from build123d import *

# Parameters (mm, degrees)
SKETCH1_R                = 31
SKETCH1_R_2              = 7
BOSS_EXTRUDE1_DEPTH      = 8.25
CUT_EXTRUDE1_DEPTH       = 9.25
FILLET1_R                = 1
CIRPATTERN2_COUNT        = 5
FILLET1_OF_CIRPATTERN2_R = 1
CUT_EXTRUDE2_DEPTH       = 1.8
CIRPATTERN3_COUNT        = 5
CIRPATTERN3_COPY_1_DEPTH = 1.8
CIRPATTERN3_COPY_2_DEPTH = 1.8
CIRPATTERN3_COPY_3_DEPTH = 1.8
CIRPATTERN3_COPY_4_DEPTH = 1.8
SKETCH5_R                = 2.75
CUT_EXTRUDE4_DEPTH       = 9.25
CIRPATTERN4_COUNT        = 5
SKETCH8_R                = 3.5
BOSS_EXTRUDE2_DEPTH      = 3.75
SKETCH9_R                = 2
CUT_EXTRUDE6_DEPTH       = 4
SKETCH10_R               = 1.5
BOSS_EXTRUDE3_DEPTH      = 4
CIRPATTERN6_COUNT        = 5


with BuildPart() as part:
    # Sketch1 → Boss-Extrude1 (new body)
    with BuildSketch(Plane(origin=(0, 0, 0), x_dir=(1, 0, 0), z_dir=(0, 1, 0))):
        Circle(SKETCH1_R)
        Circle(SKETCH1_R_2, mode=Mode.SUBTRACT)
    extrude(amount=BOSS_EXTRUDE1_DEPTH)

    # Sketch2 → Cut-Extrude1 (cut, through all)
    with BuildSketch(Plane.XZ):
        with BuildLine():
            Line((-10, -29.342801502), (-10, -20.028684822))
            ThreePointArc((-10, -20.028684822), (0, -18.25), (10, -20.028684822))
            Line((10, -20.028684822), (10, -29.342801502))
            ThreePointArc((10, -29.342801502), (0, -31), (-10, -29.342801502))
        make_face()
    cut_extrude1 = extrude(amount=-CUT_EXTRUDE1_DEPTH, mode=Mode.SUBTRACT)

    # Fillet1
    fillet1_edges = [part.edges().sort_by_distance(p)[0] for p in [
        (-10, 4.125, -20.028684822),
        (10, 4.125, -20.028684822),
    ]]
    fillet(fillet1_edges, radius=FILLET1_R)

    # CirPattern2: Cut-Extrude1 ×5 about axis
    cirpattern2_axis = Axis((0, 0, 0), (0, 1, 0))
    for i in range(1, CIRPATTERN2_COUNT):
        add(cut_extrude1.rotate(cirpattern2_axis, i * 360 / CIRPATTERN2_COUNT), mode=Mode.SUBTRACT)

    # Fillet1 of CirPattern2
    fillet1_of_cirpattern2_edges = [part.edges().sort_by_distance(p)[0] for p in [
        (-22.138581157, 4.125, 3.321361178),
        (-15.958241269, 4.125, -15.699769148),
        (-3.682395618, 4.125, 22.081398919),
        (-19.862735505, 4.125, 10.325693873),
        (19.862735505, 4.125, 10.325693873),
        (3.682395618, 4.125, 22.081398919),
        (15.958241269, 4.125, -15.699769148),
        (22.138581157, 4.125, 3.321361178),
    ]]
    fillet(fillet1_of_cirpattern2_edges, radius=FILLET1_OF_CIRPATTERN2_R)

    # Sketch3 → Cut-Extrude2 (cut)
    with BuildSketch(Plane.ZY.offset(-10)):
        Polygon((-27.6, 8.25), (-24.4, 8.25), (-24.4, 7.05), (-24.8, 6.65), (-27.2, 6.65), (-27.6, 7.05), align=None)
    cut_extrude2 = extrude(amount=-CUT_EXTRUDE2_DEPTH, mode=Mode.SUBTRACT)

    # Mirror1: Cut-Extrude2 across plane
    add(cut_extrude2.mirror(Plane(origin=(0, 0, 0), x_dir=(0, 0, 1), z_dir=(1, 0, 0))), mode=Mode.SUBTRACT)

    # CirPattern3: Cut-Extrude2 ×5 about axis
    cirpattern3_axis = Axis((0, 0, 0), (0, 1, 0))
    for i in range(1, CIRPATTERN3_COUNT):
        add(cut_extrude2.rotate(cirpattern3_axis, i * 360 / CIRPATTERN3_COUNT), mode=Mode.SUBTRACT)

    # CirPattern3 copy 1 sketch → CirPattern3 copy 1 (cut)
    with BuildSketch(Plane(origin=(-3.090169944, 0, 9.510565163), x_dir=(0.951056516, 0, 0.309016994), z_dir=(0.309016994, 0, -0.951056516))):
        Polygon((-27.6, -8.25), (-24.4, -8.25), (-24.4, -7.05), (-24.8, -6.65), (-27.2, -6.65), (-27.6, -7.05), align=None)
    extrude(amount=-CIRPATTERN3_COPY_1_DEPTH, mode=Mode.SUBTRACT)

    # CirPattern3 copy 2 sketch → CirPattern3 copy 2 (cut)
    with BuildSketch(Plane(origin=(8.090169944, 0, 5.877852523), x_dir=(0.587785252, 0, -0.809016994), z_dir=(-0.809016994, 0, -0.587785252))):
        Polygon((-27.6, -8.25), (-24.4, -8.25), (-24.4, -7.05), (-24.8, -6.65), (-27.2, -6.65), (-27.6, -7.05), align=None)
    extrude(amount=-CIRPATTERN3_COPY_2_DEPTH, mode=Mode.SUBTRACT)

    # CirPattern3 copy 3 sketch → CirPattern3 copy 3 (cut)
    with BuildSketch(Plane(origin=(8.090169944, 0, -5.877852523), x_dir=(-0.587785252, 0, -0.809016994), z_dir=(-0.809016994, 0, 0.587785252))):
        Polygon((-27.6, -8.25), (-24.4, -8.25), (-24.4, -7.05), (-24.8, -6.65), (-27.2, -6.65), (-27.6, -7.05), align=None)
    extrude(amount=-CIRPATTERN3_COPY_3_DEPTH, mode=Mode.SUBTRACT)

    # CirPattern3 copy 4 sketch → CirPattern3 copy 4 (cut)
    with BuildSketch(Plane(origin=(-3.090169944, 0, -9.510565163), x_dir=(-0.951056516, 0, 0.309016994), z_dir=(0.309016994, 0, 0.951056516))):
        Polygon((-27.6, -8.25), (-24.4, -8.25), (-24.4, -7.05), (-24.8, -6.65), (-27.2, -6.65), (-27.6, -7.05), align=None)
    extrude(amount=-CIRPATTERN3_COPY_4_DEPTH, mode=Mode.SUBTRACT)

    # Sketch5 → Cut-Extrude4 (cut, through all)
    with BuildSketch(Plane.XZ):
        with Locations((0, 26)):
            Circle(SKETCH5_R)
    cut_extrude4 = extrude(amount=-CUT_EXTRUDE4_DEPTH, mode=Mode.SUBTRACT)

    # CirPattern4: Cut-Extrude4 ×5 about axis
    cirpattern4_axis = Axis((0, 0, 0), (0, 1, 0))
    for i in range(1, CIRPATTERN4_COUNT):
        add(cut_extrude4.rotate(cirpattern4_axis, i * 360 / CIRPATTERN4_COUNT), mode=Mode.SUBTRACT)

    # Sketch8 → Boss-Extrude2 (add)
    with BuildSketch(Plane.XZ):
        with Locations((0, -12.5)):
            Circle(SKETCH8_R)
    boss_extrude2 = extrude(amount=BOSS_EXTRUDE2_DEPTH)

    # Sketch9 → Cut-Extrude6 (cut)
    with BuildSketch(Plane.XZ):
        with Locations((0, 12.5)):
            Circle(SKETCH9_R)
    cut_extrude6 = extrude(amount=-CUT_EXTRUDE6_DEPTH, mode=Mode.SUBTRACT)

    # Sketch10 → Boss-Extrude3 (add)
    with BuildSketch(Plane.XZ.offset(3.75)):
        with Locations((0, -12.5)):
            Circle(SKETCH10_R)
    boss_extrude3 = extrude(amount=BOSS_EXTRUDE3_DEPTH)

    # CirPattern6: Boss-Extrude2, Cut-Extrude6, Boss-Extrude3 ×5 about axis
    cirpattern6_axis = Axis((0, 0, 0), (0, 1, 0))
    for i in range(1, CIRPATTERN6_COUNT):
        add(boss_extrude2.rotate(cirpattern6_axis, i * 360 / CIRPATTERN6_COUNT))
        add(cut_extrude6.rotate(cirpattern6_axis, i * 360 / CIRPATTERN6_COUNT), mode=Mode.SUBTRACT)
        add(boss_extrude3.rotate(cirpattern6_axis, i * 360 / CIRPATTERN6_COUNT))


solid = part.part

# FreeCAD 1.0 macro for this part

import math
import FreeCAD as App
import Part
import Sketcher
from FreeCAD import Vector
Q = App.Units.Quantity


def edges_at(feature, points):
    """Names of the edges that pass closest to the given points."""
    edges = feature.Shape.Edges
    near = lambda p: min(range(len(edges)), key=lambda i: edges[i].distToShape(Part.Vertex(*p))[0])
    return sorted({f"Edge{near(p) + 1}" for p in points})


def add_polygon(sketch, points):
    """Adds a closed chain of lines whose ends are joined by coincident constraints."""
    first, n = sketch.GeometryCount, len(points)
    for a, b in zip(points, points[1:] + points[:1]):
        sketch.addGeometry(Part.LineSegment(App.Vector(*a, 0), App.Vector(*b, 0)), False)
    for i in range(n):
        sketch.addConstraint(Sketcher.Constraint("Coincident", first + i, 2, first + (i + 1) % n, 1))

doc = App.newDocument("Part")
body = doc.addObject("PartDesign::Body", "Body")

# Sketch on XZ plane
sketch1 = body.newObject("Sketcher::SketchObject", "Sketch")
sketch1.AttachmentSupport = (doc.getObject("XZ_Plane"), [""])
sketch1.MapMode = "FlatFace"
sketch1.addGeometry([
    Part.Circle(Vector(0, 0, 0), Vector(0, 0, 1), 31),
    Part.Circle(Vector(0, 0, 0), Vector(0, 0, 1), 7),
], False)
sketch1.addConstraint([
    Sketcher.Constraint("Coincident", 0, 3, -1, 1),
    Sketcher.Constraint("Coincident", 1, 3, -1, 1),
    Sketcher.Constraint("Diameter", 0, Q("62 mm")),
    Sketcher.Constraint("Diameter", 1, Q("14 mm")),
])
pad1 = body.newObject("PartDesign::Pad", "Pad")
pad1.Profile = sketch1
pad1.Length = 8.25
pad1.Reversed = True

# Sketch on XZ plane
sketch2 = body.newObject("Sketcher::SketchObject", "Sketch001")
sketch2.AttachmentSupport = (doc.getObject("XZ_Plane"), [""])
sketch2.MapMode = "FlatFace"
sketch2.addGeometry([
    Part.LineSegment(Vector(-10, -20.028685, 0), Vector(-10, -29.342802, 0)),
    Part.ArcOfCircle(Part.Circle(Vector(0, 0, 0), Vector(0, 0, 1), 31), math.radians(-108.819063), math.radians(-71.180937)),
    Part.LineSegment(Vector(10, -29.342802, 0), Vector(10, -20.028685, 0)),
    Part.ArcOfCircle(Part.Circle(Vector(0, -47.25, 0), Vector(0, 0, 1), 29), math.radians(69.828729), math.radians(110.171271)),
], False)
sketch2.addConstraint([
    Sketcher.Constraint("Coincident", 0, 2, 1, 1),
    Sketcher.Constraint("Coincident", 1, 2, 2, 1),
    Sketcher.Constraint("Coincident", 2, 2, 3, 1),
    Sketcher.Constraint("Coincident", 3, 2, 0, 1),
    Sketcher.Constraint("Vertical", 0),
    Sketcher.Constraint("Vertical", 2),
    Sketcher.Constraint("Coincident", 1, 3, -1, 1),
    Sketcher.Constraint("Symmetric", 2, 2, 3, 2, -2),
    Sketcher.Constraint("Radius", 1, Q("31 mm")),
    Sketcher.Constraint("Radius", 3, Q("29 mm")),
    Sketcher.Constraint("DistanceX", 0, 2, -1, 1, Q("10 mm")),
    Sketcher.Constraint("DistanceY", 3, 3, -1, 1, Q("47.25 mm")),
])
pocket1 = body.newObject("PartDesign::Pocket", "Pocket")
pocket1.Profile = sketch2
pocket1.Type = "ThroughAll"
doc.recompute()

fillet = body.newObject("PartDesign::Fillet", "Fillet")
fillet.Base = (pocket1, edges_at(pocket1, [(-10, 4.125, -20.029), (10, 4.125, -20.029)]))
fillet.Radius = 1
doc.recompute()

polarpattern = body.newObject("PartDesign::PolarPattern", "PolarPattern")
polarpattern.Originals = [pocket1]
polarpattern.Axis = (doc.getObject("Y_Axis"), [""])
polarpattern.Angle = 360
polarpattern.Occurrences = 5
body.Tip = polarpattern
doc.recompute()

fillet2 = body.newObject("PartDesign::Fillet", "Fillet001")
fillet2.Base = (polarpattern, edges_at(polarpattern, [
    (-22.139, 4.125, 3.321),
    (-15.958, 4.125, -15.7),
    (-3.682, 4.125, 22.081),
    (-19.863, 4.125, 10.326),
    (19.863, 4.125, 10.326),
    (3.682, 4.125, 22.081),
    (15.958, 4.125, -15.7),
    (22.139, 4.125, 3.321),
]))
fillet2.Radius = 1

# Sketch on YZ plane
sketch3 = body.newObject("Sketcher::SketchObject", "Sketch002")
sketch3.AttachmentSupport = (doc.getObject("YZ_Plane"), [""])
sketch3.MapMode = "FlatFace"
sketch3.AttachmentOffset = App.Placement(Vector(0, 0, 10), App.Rotation())
add_polygon(sketch3, [(8.25, -24.4), (8.25, -27.6), (7.05, -27.6), (6.65, -27.2), (6.65, -24.8), (7.05, -24.4)])  # lines 0-5
sketch3.addConstraint([
    Sketcher.Constraint("Vertical", 0),
    Sketcher.Constraint("Horizontal", 1),
    Sketcher.Constraint("Vertical", 3),
    Sketcher.Constraint("Horizontal", 5),
    Sketcher.Constraint("Perpendicular", 2, 4),
    Sketcher.Constraint("Vertical", 1, 2, 4, 2),
    Sketcher.Constraint("Equal", 2, 4),
    Sketcher.Constraint("DistanceX", 1, 2, 1, 1, Q("1.2 mm")),
    Sketcher.Constraint("DistanceY", 0, 2, 0, 1, Q("3.2 mm")),
    Sketcher.Constraint("DistanceY", 3, 1, 3, 2, Q("2.4 mm")),
    Sketcher.Constraint("DistanceY", 0, 2, -1, 1, Q("27.6 mm")),
    Sketcher.Constraint("DistanceX", -1, 1, 0, 2, Q("8.25 mm")),
])
pocket2 = body.newObject("PartDesign::Pocket", "Pocket001")
pocket2.Profile = sketch3
pocket2.Length = 1.8
pocket2.Reversed = True
doc.recompute()

mirrored = body.newObject("PartDesign::Mirrored", "Mirrored")
mirrored.Originals = [pocket2]
mirrored.MirrorPlane = (doc.getObject("YZ_Plane"), [""])
body.Tip = mirrored
doc.recompute()

polarpattern2 = body.newObject("PartDesign::PolarPattern", "PolarPattern001")
polarpattern2.Originals = [pocket2]
polarpattern2.Axis = (doc.getObject("Y_Axis"), [""])
polarpattern2.Angle = 360
polarpattern2.Occurrences = 5
body.Tip = polarpattern2

# Sketch on an angled plane
sketch4 = body.newObject("Sketcher::SketchObject", "Sketch003")
sketch4.Placement = App.Placement(Vector(-3.09017, 0, 9.510565), App.Rotation(Vector(0.951056516, 0, 0.309016994), Vector(0, -0.999999999, 0), Vector(0.309016994, 0, -0.951056516), "ZXY"))
add_polygon(sketch4, [(-27.6, -8.25), (-24.4, -8.25), (-24.4, -7.05), (-24.8, -6.65), (-27.2, -6.65), (-27.6, -7.05)])  # lines 0-5
sketch4.addConstraint([
    Sketcher.Constraint("Horizontal", 0),
    Sketcher.Constraint("Vertical", 1),
    Sketcher.Constraint("Horizontal", 3),
    Sketcher.Constraint("Vertical", 5),
    Sketcher.Constraint("Perpendicular", 2, 4),
    Sketcher.Constraint("Horizontal", 1, 2, 4, 2),
    Sketcher.Constraint("Equal", 2, 4),
    Sketcher.Constraint("DistanceX", 0, 1, 0, 2, Q("3.2 mm")),
    Sketcher.Constraint("DistanceX", 3, 2, 3, 1, Q("2.4 mm")),
    Sketcher.Constraint("DistanceY", 1, 1, 1, 2, Q("1.2 mm")),
    Sketcher.Constraint("DistanceX", 0, 2, -1, 1, Q("24.4 mm")),
    Sketcher.Constraint("DistanceY", 0, 2, -1, 1, Q("8.25 mm")),
])
pocket3 = body.newObject("PartDesign::Pocket", "Pocket002")
pocket3.Profile = sketch4
pocket3.Length = 1.8

# Sketch on an angled plane
sketch5 = body.newObject("Sketcher::SketchObject", "Sketch004")
sketch5.Placement = App.Placement(Vector(8.09017, 0, 5.877853), App.Rotation(Vector(0.587785252, 0, -0.809016994), Vector(0, -0.999999999, 0), Vector(-0.809016994, 0, -0.587785252), "ZXY"))
add_polygon(sketch5, [(-27.6, -8.25), (-24.4, -8.25), (-24.4, -7.05), (-24.8, -6.65), (-27.2, -6.65), (-27.6, -7.05)])  # lines 0-5
sketch5.addConstraint([
    Sketcher.Constraint("Horizontal", 0),
    Sketcher.Constraint("Vertical", 1),
    Sketcher.Constraint("Horizontal", 3),
    Sketcher.Constraint("Vertical", 5),
    Sketcher.Constraint("Perpendicular", 2, 4),
    Sketcher.Constraint("Horizontal", 1, 2, 4, 2),
    Sketcher.Constraint("Equal", 2, 4),
    Sketcher.Constraint("DistanceX", 0, 1, 0, 2, Q("3.2 mm")),
    Sketcher.Constraint("DistanceX", 3, 2, 3, 1, Q("2.4 mm")),
    Sketcher.Constraint("DistanceY", 1, 1, 1, 2, Q("1.2 mm")),
    Sketcher.Constraint("DistanceX", 0, 2, -1, 1, Q("24.4 mm")),
    Sketcher.Constraint("DistanceY", 0, 2, -1, 1, Q("8.25 mm")),
])
pocket4 = body.newObject("PartDesign::Pocket", "Pocket003")
pocket4.Profile = sketch5
pocket4.Length = 1.8

# Sketch on an angled plane
sketch6 = body.newObject("Sketcher::SketchObject", "Sketch005")
sketch6.Placement = App.Placement(Vector(8.09017, 0, -5.877853), App.Rotation(Vector(-0.587785252, 0, -0.809016994), Vector(0, -0.999999999, 0), Vector(-0.809016994, 0, 0.587785252), "ZXY"))
add_polygon(sketch6, [(-27.6, -8.25), (-24.4, -8.25), (-24.4, -7.05), (-24.8, -6.65), (-27.2, -6.65), (-27.6, -7.05)])  # lines 0-5
sketch6.addConstraint([
    Sketcher.Constraint("Horizontal", 0),
    Sketcher.Constraint("Vertical", 1),
    Sketcher.Constraint("Horizontal", 3),
    Sketcher.Constraint("Vertical", 5),
    Sketcher.Constraint("Perpendicular", 2, 4),
    Sketcher.Constraint("Horizontal", 1, 2, 4, 2),
    Sketcher.Constraint("Equal", 2, 4),
    Sketcher.Constraint("DistanceX", 0, 1, 0, 2, Q("3.2 mm")),
    Sketcher.Constraint("DistanceX", 3, 2, 3, 1, Q("2.4 mm")),
    Sketcher.Constraint("DistanceY", 1, 1, 1, 2, Q("1.2 mm")),
    Sketcher.Constraint("DistanceX", 0, 2, -1, 1, Q("24.4 mm")),
    Sketcher.Constraint("DistanceY", 0, 2, -1, 1, Q("8.25 mm")),
])
pocket5 = body.newObject("PartDesign::Pocket", "Pocket004")
pocket5.Profile = sketch6
pocket5.Length = 1.8

# Sketch on an angled plane
sketch7 = body.newObject("Sketcher::SketchObject", "Sketch006")
sketch7.Placement = App.Placement(Vector(-3.09017, 0, -9.510565), App.Rotation(Vector(-0.951056516, 0, 0.309016994), Vector(0, -0.999999999, 0), Vector(0.309016994, 0, 0.951056516), "ZXY"))
add_polygon(sketch7, [(-27.6, -8.25), (-24.4, -8.25), (-24.4, -7.05), (-24.8, -6.65), (-27.2, -6.65), (-27.6, -7.05)])  # lines 0-5
sketch7.addConstraint([
    Sketcher.Constraint("Horizontal", 0),
    Sketcher.Constraint("Vertical", 1),
    Sketcher.Constraint("Horizontal", 3),
    Sketcher.Constraint("Vertical", 5),
    Sketcher.Constraint("Perpendicular", 2, 4),
    Sketcher.Constraint("Horizontal", 1, 2, 4, 2),
    Sketcher.Constraint("Equal", 2, 4),
    Sketcher.Constraint("DistanceX", 0, 1, 0, 2, Q("3.2 mm")),
    Sketcher.Constraint("DistanceX", 3, 2, 3, 1, Q("2.4 mm")),
    Sketcher.Constraint("DistanceY", 1, 1, 1, 2, Q("1.2 mm")),
    Sketcher.Constraint("DistanceX", 0, 2, -1, 1, Q("24.4 mm")),
    Sketcher.Constraint("DistanceY", 0, 2, -1, 1, Q("8.25 mm")),
])
pocket6 = body.newObject("PartDesign::Pocket", "Pocket005")
pocket6.Profile = sketch7
pocket6.Length = 1.8

# Sketch on XZ plane
sketch8 = body.newObject("Sketcher::SketchObject", "Sketch007")
sketch8.AttachmentSupport = (doc.getObject("XZ_Plane"), [""])
sketch8.MapMode = "FlatFace"
sketch8.addGeometry(Part.Circle(Vector(0, 26, 0), Vector(0, 0, 1), 2.75), False)
sketch8.addConstraint([
    Sketcher.Constraint("PointOnObject", 0, 3, -2),
    Sketcher.Constraint("Diameter", 0, Q("5.5 mm")),
    Sketcher.Constraint("DistanceY", -1, 1, 0, 3, Q("26 mm")),
])
pocket7 = body.newObject("PartDesign::Pocket", "Pocket006")
pocket7.Profile = sketch8
pocket7.Type = "ThroughAll"
doc.recompute()

polarpattern3 = body.newObject("PartDesign::PolarPattern", "PolarPattern002")
polarpattern3.Originals = [pocket7]
polarpattern3.Axis = (doc.getObject("Y_Axis"), [""])
polarpattern3.Angle = 360
polarpattern3.Occurrences = 5
body.Tip = polarpattern3

# Sketch on XZ plane
sketch9 = body.newObject("Sketcher::SketchObject", "Sketch008")
sketch9.AttachmentSupport = (doc.getObject("XZ_Plane"), [""])
sketch9.MapMode = "FlatFace"
sketch9.addGeometry(Part.Circle(Vector(0, -12.5, 0), Vector(0, 0, 1), 3.5), False)
sketch9.addConstraint([
    Sketcher.Constraint("PointOnObject", 0, 3, -2),
    Sketcher.Constraint("Diameter", 0, Q("7 mm")),
    Sketcher.Constraint("DistanceY", 0, 3, -1, 1, Q("12.5 mm")),
])
pad2 = body.newObject("PartDesign::Pad", "Pad001")
pad2.Profile = sketch9
pad2.Length = 3.75

# Sketch on XZ plane
sketch10 = body.newObject("Sketcher::SketchObject", "Sketch009")
sketch10.AttachmentSupport = (doc.getObject("XZ_Plane"), [""])
sketch10.MapMode = "FlatFace"
sketch10.addGeometry(Part.Circle(Vector(0, 12.5, 0), Vector(0, 0, 1), 2), False)
sketch10.addConstraint([
    Sketcher.Constraint("PointOnObject", 0, 3, -2),
    Sketcher.Constraint("Diameter", 0, Q("4 mm")),
    Sketcher.Constraint("DistanceY", -1, 1, 0, 3, Q("12.5 mm")),
])
pocket8 = body.newObject("PartDesign::Pocket", "Pocket007")
pocket8.Profile = sketch10
pocket8.Length = 4

# Sketch on XZ plane
sketch11 = body.newObject("Sketcher::SketchObject", "Sketch010")
sketch11.AttachmentSupport = (doc.getObject("XZ_Plane"), [""])
sketch11.MapMode = "FlatFace"
sketch11.AttachmentOffset = App.Placement(Vector(0, 0, 3.75), App.Rotation())
sketch11.addGeometry(Part.Circle(Vector(0, -12.5, 0), Vector(0, 0, 1), 1.5), False)
sketch11.addConstraint([
    Sketcher.Constraint("PointOnObject", 0, 3, -2),
    Sketcher.Constraint("Diameter", 0, Q("3 mm")),
    Sketcher.Constraint("DistanceY", 0, 3, -1, 1, Q("12.5 mm")),
])
pad3 = body.newObject("PartDesign::Pad", "Pad002")
pad3.Profile = sketch11
pad3.Length = 4
doc.recompute()

polarpattern4 = body.newObject("PartDesign::PolarPattern", "PolarPattern003")
polarpattern4.Originals = [pad2, pocket8, pad3]
polarpattern4.Axis = (doc.getObject("Y_Axis"), [""])
polarpattern4.Angle = 360
polarpattern4.Occurrences = 5
body.Tip = polarpattern4

doc.recompute()
